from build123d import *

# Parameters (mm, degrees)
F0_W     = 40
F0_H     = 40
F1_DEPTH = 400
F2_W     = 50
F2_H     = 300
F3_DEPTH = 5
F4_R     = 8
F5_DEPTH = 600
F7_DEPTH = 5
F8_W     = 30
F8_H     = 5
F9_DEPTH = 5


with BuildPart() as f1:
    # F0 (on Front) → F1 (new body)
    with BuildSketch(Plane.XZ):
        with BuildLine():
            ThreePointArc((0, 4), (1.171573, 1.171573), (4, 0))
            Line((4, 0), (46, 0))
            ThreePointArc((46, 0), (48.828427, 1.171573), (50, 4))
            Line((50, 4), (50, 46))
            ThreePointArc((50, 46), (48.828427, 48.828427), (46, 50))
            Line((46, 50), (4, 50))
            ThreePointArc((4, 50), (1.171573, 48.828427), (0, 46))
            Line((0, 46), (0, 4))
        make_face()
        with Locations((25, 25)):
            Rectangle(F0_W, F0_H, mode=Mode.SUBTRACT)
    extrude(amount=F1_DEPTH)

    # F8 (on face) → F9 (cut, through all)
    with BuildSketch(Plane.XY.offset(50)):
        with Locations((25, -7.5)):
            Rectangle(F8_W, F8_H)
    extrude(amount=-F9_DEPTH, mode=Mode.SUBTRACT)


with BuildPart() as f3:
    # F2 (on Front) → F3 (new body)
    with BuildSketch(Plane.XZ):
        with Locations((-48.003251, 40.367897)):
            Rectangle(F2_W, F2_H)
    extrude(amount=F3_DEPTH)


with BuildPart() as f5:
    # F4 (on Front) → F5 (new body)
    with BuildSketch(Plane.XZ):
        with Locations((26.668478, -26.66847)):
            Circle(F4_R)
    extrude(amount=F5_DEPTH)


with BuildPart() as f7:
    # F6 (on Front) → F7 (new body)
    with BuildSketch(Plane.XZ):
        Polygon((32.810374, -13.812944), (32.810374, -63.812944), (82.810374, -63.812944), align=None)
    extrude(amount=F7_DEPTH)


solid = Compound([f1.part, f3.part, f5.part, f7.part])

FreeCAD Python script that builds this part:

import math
import FreeCAD as App
import Part
import Sketcher

V = App.Vector
Q = App.Units.Quantity


def add_polygon(sketch, points):
    """Adds a closed chain of lines whose ends are joined by coincident constraints."""
    first, n = sketch.GeometryCount, len(points)
    for a, b in zip(points, points[1:] + points[:1]):
        sketch.addGeometry(Part.LineSegment(App.Vector(*a, 0), App.Vector(*b, 0)), False)
    for i in range(n):
        sketch.addConstraint(Sketcher.Constraint("Coincident", first + i, 2, first + (i + 1) % n, 1))

doc = App.newDocument("Part")
body = doc.addObject("PartDesign::Body", "Body")

# Sketch on XZ plane
sketch1 = body.newObject("Sketcher::SketchObject", "Sketch")
sketch1.AttachmentSupport = (doc.getObject("XZ_Plane"), [""])
sketch1.MapMode = "FlatFace"
sketch1.addGeometry(Part.ArcOfCircle(Part.Circle(V(4, 4, 0), V(0, 0, 1), 4), math.radians(-180), math.radians(-90)), False)  # 0
sketch1.addGeometry(Part.LineSegment(V(4, 0, 0), V(46, 0, 0)), False)  # 1
sketch1.addGeometry(Part.ArcOfCircle(Part.Circle(V(46, 4, 0), V(0, 0, 1), 4), math.radians(-90), math.radians(0)), False)  # 2
sketch1.addGeometry(Part.LineSegment(V(50, 4, 0), V(50, 46, 0)), False)  # 3
sketch1.addGeometry(Part.ArcOfCircle(Part.Circle(V(46, 46, 0), V(0, 0, 1), 4), math.radians(0), math.radians(90)), False)  # 4
sketch1.addGeometry(Part.LineSegment(V(46, 50, 0), V(4, 50, 0)), False)  # 5
sketch1.addGeometry(Part.ArcOfCircle(Part.Circle(V(4, 46, 0), V(0, 0, 1), 4), math.radians(90), math.radians(180)), False)  # 6
sketch1.addGeometry(Part.LineSegment(V(0, 46, 0), V(0, 4, 0)), False)  # 7
add_polygon(sketch1, [(45, 5), (5, 5), (5, 45), (45, 45)])  # lines 8-11
sketch1.addConstraint([
    Sketcher.Constraint("Tangent", 0, 2, 1, 1),
    Sketcher.Constraint("Tangent", 1, 2, 2, 1),
    Sketcher.Constraint("Tangent", 2, 2, 3, 1),
    Sketcher.Constraint("Tangent", 3, 2, 4, 1),
    Sketcher.Constraint("Tangent", 4, 2, 5, 1),
    Sketcher.Constraint("Tangent", 5, 2, 6, 1),
    Sketcher.Constraint("Tangent", 6, 2, 7, 1),
    Sketcher.Constraint("Tangent", 7, 2, 0, 1),
    Sketcher.Constraint("Horizontal", 1),
    Sketcher.Constraint("Vertical", 3),
    Sketcher.Constraint("Horizontal", 5),
    Sketcher.Constraint("Vertical", 7),
    Sketcher.Constraint("Horizontal", 8),
    Sketcher.Constraint("Vertical", 9),
    Sketcher.Constraint("Horizontal", 10),
    Sketcher.Constraint("Vertical", 11),
    Sketcher.Constraint("Equal", 0, 2),
    Sketcher.Constraint("Equal", 2, 4),
    Sketcher.Constraint("Equal", 4, 6),
    Sketcher.Constraint("PointOnObject", 0, 2, -1),
    Sketcher.Constraint("PointOnObject", 6, 2, -2),
    Sketcher.Constraint("Equal", 5, 3),
    Sketcher.Constraint("Equal", 10, 9),
    Sketcher.Constraint("Radius", 0, Q("4 mm")),
    Sketcher.Constraint("DistanceX", 1, 1, 1, 2, Q("42 mm")),
    Sketcher.Constraint("DistanceX", 8, 2, 8, 1, Q("40 mm")),
    Sketcher.Constraint("DistanceX", -1, 1, 8, 2, Q("5 mm")),
    Sketcher.Constraint("DistanceY", -1, 1, 8, 2, Q("5 mm")),
])
pad1 = body.newObject("PartDesign::Pad", "Pad")
pad1.Profile = sketch1
pad1.Length = 400

# Sketch on XY plane
sketch2 = body.newObject("Sketcher::SketchObject", "Sketch001")
sketch2.AttachmentSupport = (doc.getObject("XY_Plane"), [""])
sketch2.MapMode = "FlatFace"
sketch2.AttachmentOffset = App.Placement(V(0, 0, 50), App.Rotation())
add_polygon(sketch2, [(10, -5), (10, -10), (40, -10), (40, -5)])  # lines 0-3
sketch2.addConstraint([
    Sketcher.Constraint("Vertical", 0),
    Sketcher.Constraint("Horizontal", 1),
    Sketcher.Constraint("Vertical", 2),
    Sketcher.Constraint("Horizontal", 3),
    Sketcher.Constraint("DistanceX", 1, 1, 1, 2, Q("30 mm")),
    Sketcher.Constraint("DistanceY", 0, 2, 0, 1, Q("5 mm")),
    Sketcher.Constraint("DistanceX", -1, 1, 0, 2, Q("10 mm")),
    Sketcher.Constraint("DistanceY", 0, 2, -1, 1, Q("10 mm")),
])
pocket1 = body.newObject("PartDesign::Pocket", "Pocket")
pocket1.Profile = sketch2
pocket1.Length = 5
body2 = doc.addObject("PartDesign::Body", "Body001")

# Sketch on XZ plane
sketch3 = body2.newObject("Sketcher::SketchObject", "Sketch002")
sketch3.AttachmentSupport = (doc.getObject("XZ_Plane001"), [""])
sketch3.MapMode = "FlatFace"
add_polygon(sketch3, [(-73, 190), (-73, -110), (-23, -110), (-23, 190)])  # lines 0-3
sketch3.addConstraint([
    Sketcher.Constraint("Vertical", 0),
    Sketcher.Constraint("Horizontal", 1),
    Sketcher.Constraint("Vertical", 2),
    Sketcher.Constraint("Horizontal", 3),
    Sketcher.Constraint("DistanceX", 1, 1, 1, 2, Q("50 mm")),
    Sketcher.Constraint("DistanceY", 0, 2, 0, 1, Q("300 mm")),
    Sketcher.Constraint("DistanceX", 0, 2, -1, 1, Q("73.003251 mm")),
    Sketcher.Constraint("DistanceY", 0, 2, -1, 1, Q("109.632103 mm")),
])
pad2 = body2.newObject("PartDesign::Pad", "Pad001")
pad2.Profile = sketch3
pad2.Length = 5
body3 = doc.addObject("PartDesign::Body", "Body002")

# Sketch on XZ plane
sketch4 = body3.newObject("Sketcher::SketchObject", "Sketch003")
sketch4.AttachmentSupport = (doc.getObject("XZ_Plane002"), [""])
sketch4.MapMode = "FlatFace"
sketch4.addGeometry(Part.Circle(V(27, -27, 0), V(0, 0, 1), 8), False)
sketch4.addConstraint([
    Sketcher.Constraint("Diameter", 0, Q("16 mm")),
    Sketcher.Constraint("DistanceX", -1, 1, 0, 3, Q("26.668478 mm")),
    Sketcher.Constraint("DistanceY", 0, 3, -1, 1, Q("26.66847 mm")),
])
pad3 = body3.newObject("PartDesign::Pad", "Pad002")
pad3.Profile = sketch4
pad3.Length = 600
body4 = doc.addObject("PartDesign::Body", "Body003")

# Sketch on XZ plane
sketch5 = body4.newObject("Sketcher::SketchObject", "Sketch004")
sketch5.AttachmentSupport = (doc.getObject("XZ_Plane003"), [""])
sketch5.MapMode = "FlatFace"
add_polygon(sketch5, [(33, -14), (33, -64), (83, -64)])  # lines 0-2
sketch5.addConstraint([
    Sketcher.Constraint("Vertical", 0),
    Sketcher.Constraint("Horizontal", 1),
    Sketcher.Constraint("Equal", 1, 0),
    Sketcher.Constraint("DistanceX", 1, 1, 1, 2, Q("50 mm")),
    Sketcher.Constraint("DistanceX", -1, 1, 0, 2, Q("32.810374 mm")),
    Sketcher.Constraint("DistanceY", 0, 2, -1, 1, Q("63.812944 mm")),
])
pad4 = body4.newObject("PartDesign::Pad", "Pad003")
pad4.Profile = sketch5
pad4.Length = 5

doc.recompute()
